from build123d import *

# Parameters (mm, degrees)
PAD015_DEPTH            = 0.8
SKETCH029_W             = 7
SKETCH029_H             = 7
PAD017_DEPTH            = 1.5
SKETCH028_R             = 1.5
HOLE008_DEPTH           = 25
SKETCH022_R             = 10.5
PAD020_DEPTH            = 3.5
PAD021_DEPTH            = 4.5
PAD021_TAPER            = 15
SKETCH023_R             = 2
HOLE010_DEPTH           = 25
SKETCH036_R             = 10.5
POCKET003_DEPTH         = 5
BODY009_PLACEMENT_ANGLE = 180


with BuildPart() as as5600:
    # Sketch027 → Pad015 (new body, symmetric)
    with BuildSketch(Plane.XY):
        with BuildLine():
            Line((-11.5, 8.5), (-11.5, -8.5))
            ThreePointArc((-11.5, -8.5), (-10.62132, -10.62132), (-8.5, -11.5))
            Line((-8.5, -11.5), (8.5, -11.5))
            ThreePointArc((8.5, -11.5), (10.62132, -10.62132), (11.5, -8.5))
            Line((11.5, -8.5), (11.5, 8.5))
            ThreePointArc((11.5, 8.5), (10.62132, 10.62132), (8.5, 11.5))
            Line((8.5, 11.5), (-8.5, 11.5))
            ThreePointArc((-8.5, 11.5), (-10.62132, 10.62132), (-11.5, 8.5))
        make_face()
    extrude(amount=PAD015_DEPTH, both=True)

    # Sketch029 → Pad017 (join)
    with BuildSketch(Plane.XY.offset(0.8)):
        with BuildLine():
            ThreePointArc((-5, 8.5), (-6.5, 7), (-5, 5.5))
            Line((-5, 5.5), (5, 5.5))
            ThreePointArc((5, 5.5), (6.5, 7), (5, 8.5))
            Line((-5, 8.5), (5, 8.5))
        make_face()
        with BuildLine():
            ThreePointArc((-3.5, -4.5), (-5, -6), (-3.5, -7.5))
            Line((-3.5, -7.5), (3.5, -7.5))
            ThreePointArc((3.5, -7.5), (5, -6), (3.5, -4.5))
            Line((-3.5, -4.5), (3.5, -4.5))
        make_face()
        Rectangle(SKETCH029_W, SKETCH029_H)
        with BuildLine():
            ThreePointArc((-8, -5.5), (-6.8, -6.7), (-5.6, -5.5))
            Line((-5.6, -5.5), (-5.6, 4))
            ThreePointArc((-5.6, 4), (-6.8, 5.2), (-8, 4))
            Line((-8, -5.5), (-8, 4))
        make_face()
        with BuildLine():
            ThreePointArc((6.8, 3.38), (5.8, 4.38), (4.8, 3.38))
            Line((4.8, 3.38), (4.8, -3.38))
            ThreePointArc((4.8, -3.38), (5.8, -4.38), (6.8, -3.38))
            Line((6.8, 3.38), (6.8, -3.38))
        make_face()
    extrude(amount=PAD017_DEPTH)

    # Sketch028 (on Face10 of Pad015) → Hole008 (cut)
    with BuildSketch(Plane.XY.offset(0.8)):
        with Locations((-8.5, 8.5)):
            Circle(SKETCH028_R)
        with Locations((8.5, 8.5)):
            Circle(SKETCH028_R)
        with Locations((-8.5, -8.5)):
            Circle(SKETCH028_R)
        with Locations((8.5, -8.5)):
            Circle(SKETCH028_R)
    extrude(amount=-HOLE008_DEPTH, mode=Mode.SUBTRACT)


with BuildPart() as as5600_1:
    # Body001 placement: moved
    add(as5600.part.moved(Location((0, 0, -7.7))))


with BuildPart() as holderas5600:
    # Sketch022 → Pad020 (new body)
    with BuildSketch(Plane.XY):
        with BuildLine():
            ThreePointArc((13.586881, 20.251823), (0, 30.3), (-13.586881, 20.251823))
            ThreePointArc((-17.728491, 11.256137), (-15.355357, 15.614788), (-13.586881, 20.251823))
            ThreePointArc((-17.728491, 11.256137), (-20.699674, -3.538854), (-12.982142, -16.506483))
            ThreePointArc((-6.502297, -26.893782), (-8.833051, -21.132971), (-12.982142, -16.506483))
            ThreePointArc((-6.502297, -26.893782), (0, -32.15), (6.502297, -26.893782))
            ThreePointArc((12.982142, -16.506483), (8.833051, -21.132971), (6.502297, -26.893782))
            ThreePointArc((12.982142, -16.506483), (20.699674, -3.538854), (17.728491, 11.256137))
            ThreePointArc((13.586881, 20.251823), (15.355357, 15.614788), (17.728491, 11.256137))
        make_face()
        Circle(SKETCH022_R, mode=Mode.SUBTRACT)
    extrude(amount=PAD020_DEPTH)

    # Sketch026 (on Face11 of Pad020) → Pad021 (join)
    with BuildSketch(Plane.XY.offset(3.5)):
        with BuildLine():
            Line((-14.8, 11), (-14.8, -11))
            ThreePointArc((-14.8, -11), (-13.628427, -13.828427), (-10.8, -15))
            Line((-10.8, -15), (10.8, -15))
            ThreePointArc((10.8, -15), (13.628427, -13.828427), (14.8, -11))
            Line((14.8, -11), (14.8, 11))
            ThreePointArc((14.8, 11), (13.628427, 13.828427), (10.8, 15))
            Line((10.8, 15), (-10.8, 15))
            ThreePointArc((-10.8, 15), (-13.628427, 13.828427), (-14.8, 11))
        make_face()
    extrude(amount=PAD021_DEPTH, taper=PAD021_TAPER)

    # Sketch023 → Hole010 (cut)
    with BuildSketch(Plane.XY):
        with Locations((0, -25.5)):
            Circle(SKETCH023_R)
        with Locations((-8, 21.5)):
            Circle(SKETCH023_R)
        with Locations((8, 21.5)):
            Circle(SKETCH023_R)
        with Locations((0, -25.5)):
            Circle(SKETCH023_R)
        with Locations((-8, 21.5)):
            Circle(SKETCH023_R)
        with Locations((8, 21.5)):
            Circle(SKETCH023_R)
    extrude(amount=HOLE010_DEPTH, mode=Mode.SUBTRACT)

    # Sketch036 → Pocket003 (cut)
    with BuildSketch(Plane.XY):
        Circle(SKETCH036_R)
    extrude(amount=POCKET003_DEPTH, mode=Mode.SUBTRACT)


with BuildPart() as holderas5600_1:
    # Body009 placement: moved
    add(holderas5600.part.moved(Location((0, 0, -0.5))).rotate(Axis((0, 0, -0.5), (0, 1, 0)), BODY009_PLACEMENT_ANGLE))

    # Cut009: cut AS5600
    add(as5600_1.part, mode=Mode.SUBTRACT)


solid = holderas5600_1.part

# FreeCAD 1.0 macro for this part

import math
import FreeCAD as App
import Part
import Sketcher
from FreeCAD import Vector

doc = App.newDocument("Part")
body = doc.addObject("PartDesign::Body", "Body")

sketch1 = doc.addObject("Sketcher::SketchObject", "Sketch")
body.addObject(sketch1)
sketch1.AttachmentSupport = (doc.XY_Plane, [""])
sketch1.MapMode = "FlatFace"
sketch1.addGeometry([
    Part.LineSegment(Vector(-11.5, 8.5, 0), Vector(-11.5, -8.5, 0)),
    Part.ArcOfCircle(Part.Circle(Vector(-8.5, -8.5, 0), Vector(0, 0, 1), 3), math.radians(-180), math.radians(-90)),
    Part.LineSegment(Vector(-8.5, -11.5, 0), Vector(8.5, -11.5, 0)),
    Part.ArcOfCircle(Part.Circle(Vector(8.5, -8.5, 0), Vector(0, 0, 1), 3), math.radians(-90), math.radians(0)),
    Part.LineSegment(Vector(11.5, -8.5, 0), Vector(11.5, 8.5, 0)),
    Part.ArcOfCircle(Part.Circle(Vector(8.5, 8.5, 0), Vector(0, 0, 1), 3), math.radians(0), math.radians(90)),
    Part.LineSegment(Vector(8.5, 11.5, 0), Vector(-8.5, 11.5, 0)),
    Part.ArcOfCircle(Part.Circle(Vector(-8.5, 8.5, 0), Vector(0, 0, 1), 3), math.radians(90), math.radians(180)),
], False)
sketch1.addConstraint([
    Sketcher.Constraint("Tangent", 0, 2, 1, 1),
    Sketcher.Constraint("Tangent", 1, 2, 2, 1),
    Sketcher.Constraint("Tangent", 2, 2, 3, 1),
    Sketcher.Constraint("Tangent", 3, 2, 4, 1),
    Sketcher.Constraint("Tangent", 4, 2, 5, 1),
    Sketcher.Constraint("Tangent", 5, 2, 6, 1),
    Sketcher.Constraint("Tangent", 6, 2, 7, 1),
    Sketcher.Constraint("Tangent", 7, 2, 0, 1),
    Sketcher.Constraint("Vertical", 0),
    Sketcher.Constraint("Horizontal", 2),
    Sketcher.Constraint("Vertical", 4),
    Sketcher.Constraint("Horizontal", 6),
    Sketcher.Constraint("Equal", 1, 3),
    Sketcher.Constraint("Equal", 3, 5),
    Sketcher.Constraint("Equal", 5, 7),
    Sketcher.Constraint("Symmetric", 1, 3, 5, 3, -1, 1),
    Sketcher.Constraint("Equal", 6, 0),
    Sketcher.Constraint("Radius", 1, 3.000001),
    Sketcher.Constraint("DistanceX", 2, 1, 2, 2, 17.0),
])
pad1 = doc.addObject("PartDesign::Pad", "Pad")
body.addObject(pad1)
pad1.Profile = sketch1
pad1.Length = 1.6
pad1.Midplane = True

sketch2 = doc.addObject("Sketcher::SketchObject", "Sketch001")
body.addObject(sketch2)
sketch2.AttachmentSupport = (doc.XY_Plane, [""])
sketch2.MapMode = "FlatFace"
sketch2.AttachmentOffset = App.Placement(Vector(0, 0, 0.8), App.Rotation())
sketch2.addGeometry([
    Part.ArcOfCircle(Part.Circle(Vector(-5, 7, 0), Vector(0, 0, 1), 1.5), math.radians(90), math.radians(270)),
    Part.LineSegment(Vector(-5, 5.5, 0), Vector(5, 5.5, 0)),
    Part.ArcOfCircle(Part.Circle(Vector(5, 7, 0), Vector(0, 0, 1), 1.5), math.radians(-90), math.radians(90)),
    Part.LineSegment(Vector(5, 8.5, 0), Vector(-5, 8.5, 0)),
    Part.ArcOfCircle(Part.Circle(Vector(-3.5, -6, 0), Vector(0, 0, 1), 1.5), math.radians(90), math.radians(270)),
    Part.LineSegment(Vector(-3.5, -7.5, 0), Vector(3.5, -7.5, 0)),
    Part.ArcOfCircle(Part.Circle(Vector(3.5, -6, 0), Vector(0, 0, 1), 1.5), math.radians(-90), math.radians(90)),
    Part.LineSegment(Vector(3.5, -4.5, 0), Vector(-3.5, -4.5, 0)),
    Part.LineSegment(Vector(-3.5, 3.5, 0), Vector(-3.5, -3.5, 0)),
    Part.LineSegment(Vector(-3.5, -3.5, 0), Vector(3.5, -3.5, 0)),
    Part.LineSegment(Vector(3.5, -3.5, 0), Vector(3.5, 3.5, 0)),
    Part.LineSegment(Vector(3.5, 3.5, 0), Vector(-3.5, 3.5, 0)),
    Part.ArcOfCircle(Part.Circle(Vector(-6.8, -5.5, 0), Vector(0, 0, 1), 1.2), math.radians(180), math.radians(360)),
    Part.LineSegment(Vector(-5.6, -5.5, 0), Vector(-5.6, 4, 0)),
    Part.ArcOfCircle(Part.Circle(Vector(-6.8, 4, 0), Vector(0, 0, 1), 1.2), math.radians(0), math.radians(180)),
    Part.LineSegment(Vector(-8, 4, 0), Vector(-8, -5.5, 0)),
    Part.ArcOfCircle(Part.Circle(Vector(5.8, 3.4, 0), Vector(0, 0, 1), 1), math.radians(0), math.radians(180)),
    Part.LineSegment(Vector(4.8, 3.4, 0), Vector(4.8, -3.4, 0)),
    Part.ArcOfCircle(Part.Circle(Vector(5.8, -3.4, 0), Vector(0, 0, 1), 1), math.radians(180), math.radians(360)),
    Part.LineSegment(Vector(6.8, -3.4, 0), Vector(6.8, 3.4, 0)),
], False)
sketch2.addConstraint([
    Sketcher.Constraint("Tangent", 0, 2, 1, 1),
    Sketcher.Constraint("Tangent", 1, 2, 2, 1),
    Sketcher.Constraint("Tangent", 2, 2, 3, 1),
    Sketcher.Constraint("Tangent", 3, 2, 0, 1),
    Sketcher.Constraint("Tangent", 4, 2, 5, 1),
    Sketcher.Constraint("Tangent", 5, 2, 6, 1),
    Sketcher.Constraint("Tangent", 6, 2, 7, 1),
    Sketcher.Constraint("Tangent", 7, 2, 4, 1),
    Sketcher.Constraint("Coincident", 8, 2, 9, 1),
    Sketcher.Constraint("Coincident", 9, 2, 10, 1),
    Sketcher.Constraint("Coincident", 10, 2, 11, 1),
    Sketcher.Constraint("Coincident", 11, 2, 8, 1),
    Sketcher.Constraint("Tangent", 12, 2, 13, 1),
    Sketcher.Constraint("Tangent", 13, 2, 14, 1),
    Sketcher.Constraint("Tangent", 14, 2, 15, 1),
    Sketcher.Constraint("Tangent", 15, 2, 12, 1),
    Sketcher.Constraint("Tangent", 16, 2, 17, 1),
    Sketcher.Constraint("Tangent", 17, 2, 18, 1),
    Sketcher.Constraint("Tangent", 18, 2, 19, 1),
    Sketcher.Constraint("Tangent", 19, 2, 16, 1),
    Sketcher.Constraint("Horizontal", 1),
    Sketcher.Constraint("Horizontal", 3),
    Sketcher.Constraint("Horizontal", 5),
    Sketcher.Constraint("Horizontal", 7),
    Sketcher.Constraint("Vertical", 8),
    Sketcher.Constraint("Horizontal", 9),
    Sketcher.Constraint("Vertical", 10),
    Sketcher.Constraint("Horizontal", 11),
    Sketcher.Constraint("Vertical", 13),
    Sketcher.Constraint("Vertical", 15),
    Sketcher.Constraint("Vertical", 17),
    Sketcher.Constraint("Vertical", 19),
    Sketcher.Constraint("Equal", 2, 4),
    Sketcher.Constraint("Symmetric", 8, 2, 10, 2, -1, 1),
    Sketcher.Constraint("Vertical", 7, 2, 8, 2),
    Sketcher.Constraint("Vertical", 6, 2, 9, 2),
    Sketcher.Constraint("Equal", 11, 8),
    Sketcher.Constraint("Radius", 16, 1.0),
    Sketcher.Constraint("Radius", 0, 1.5),
    Sketcher.Constraint("Radius", 12, 1.2),
    Sketcher.Constraint("DistanceX", 1, 1, 1, 2, 10.0),
    Sketcher.Constraint("DistanceX", 5, 1, 5, 2, 7.0),
    Sketcher.Constraint("DistanceY", 13, 1, 13, 2, 9.5),
    Sketcher.Constraint("DistanceX", 0, 3, -1, 1, 5.0),
    Sketcher.Constraint("DistanceY", -1, 1, 0, 3, 7.0),
    Sketcher.Constraint("DistanceY", 4, 3, -1, 1, 6.0),
    Sketcher.Constraint("DistanceY", -1, 1, 14, 3, 4.0),
    Sketcher.Constraint("DistanceX", 14, 2, -1, 1, 8.0),
    Sketcher.Constraint("DistanceY", 17, 2, 17, 1, 6.76),
    Sketcher.Constraint("DistanceX", -1, 1, 16, 3, 5.8),
    Sketcher.Constraint("DistanceY", -1, 1, 16, 3, 3.38),
])
pad2 = doc.addObject("PartDesign::Pad", "Pad001")
body.addObject(pad2)
pad2.Profile = sketch2
pad2.Length = 1.5

sketch3 = doc.addObject("Sketcher::SketchObject", "Sketch002")
body.addObject(sketch3)
sketch3.AttachmentSupport = (doc.XY_Plane, [""])
sketch3.MapMode = "FlatFace"
sketch3.AttachmentOffset = App.Placement(Vector(0, 0, 0.8), App.Rotation())
sketch3.addGeometry([
    Part.Circle(Vector(-8.5, 8.5, 0), Vector(0, 0, 1), 1.5),
    Part.Circle(Vector(8.5, 8.5, 0), Vector(0, 0, 1), 1.5),
    Part.Circle(Vector(-8.5, -8.5, 0), Vector(0, 0, 1), 1.5),
    Part.Circle(Vector(8.5, -8.5, 0), Vector(0, 0, 1), 1.5),
], False)
sketch3.addConstraint([
    Sketcher.Constraint("Equal", 0, 1),
    Sketcher.Constraint("Equal", 1, 2),
    Sketcher.Constraint("Equal", 2, 3),
    Sketcher.Constraint("Symmetric", 1, 3, 2, 3, -1, 1),
    Sketcher.Constraint("Symmetric", 0, 3, 3, 3, -1, 1),
    Sketcher.Constraint("Symmetric", 0, 3, 1, 3, -2),
    Sketcher.Constraint("Diameter", 0, 3.0),
    Sketcher.Constraint("DistanceX", 0, 3, 1, 3, 17.0),
    Sketcher.Constraint("DistanceY", 2, 3, 0, 3, 17.0),
])
pocket1 = doc.addObject("PartDesign::Pocket", "Pocket")
body.addObject(pocket1)
pocket1.Profile = sketch3
pocket1.Length = 25
body2 = doc.addObject("PartDesign::Body", "Body001")
doc.recompute()

body.Placement = App.Placement(Vector(0, 0, -7.7), App.Rotation(Vector(0, 0, 1), 0))
boolean = doc.addObject("PartDesign::Boolean", "Boolean")
body2.addObject(boolean)
boolean.Type = "Fuse"
boolean.addObjects([body])
body3 = doc.addObject("PartDesign::Body", "Body002")

sketch4 = doc.addObject("Sketcher::SketchObject", "Sketch003")
body3.addObject(sketch4)
sketch4.AttachmentSupport = (doc.getObject("XY_Plane002"), [""])
sketch4.MapMode = "FlatFace"
sketch4.addGeometry([
    Part.ArcOfCircle(Part.Circle(Vector(0, 16, 0), Vector(0, 0, 1), 14), math.radians(17), math.radians(163)),
    Part.ArcOfCircle(Part.Circle(Vector(-49, 31, 0), Vector(0, 0, 1), 37), math.radians(-32.41), math.radians(-17.03)),
    Part.ArcOfCircle(Part.Circle(Vector(0, 0, 0), Vector(0, 0, 1), 21), math.radians(148), math.radians(232)),
    Part.ArcOfCircle(Part.Circle(Vector(-24, -31, 0), Vector(0, 0, 1), 18), math.radians(12), math.radians(52)),
    Part.ArcOfCircle(Part.Circle(Vector(0, -26, 0), Vector(0, 0, 1), 7), math.radians(-168), math.radians(-12)),
    Part.ArcOfCircle(Part.Circle(Vector(24, -31, 0), Vector(0, 0, 1), 18), math.radians(128), math.radians(168)),
    Part.ArcOfCircle(Part.Circle(Vector(0, 0, 0), Vector(0, 0, 1), 21), math.radians(-52), math.radians(32)),
    Part.ArcOfCircle(Part.Circle(Vector(49, 31, 0), Vector(0, 0, 1), 37), math.radians(-162.97), math.radians(-147.59)),
    Part.Circle(Vector(0, 0, 0), Vector(0, 0, 1), 10),
], False)
sketch4.addConstraint([
    Sketcher.Constraint("Tangent", 0, 2, 1, 2),
    Sketcher.Constraint("Tangent", 1, 1, 2, 1),
    Sketcher.Constraint("Tangent", 2, 2, 3, 2),
    Sketcher.Constraint("Tangent", 3, 1, 4, 1),
    Sketcher.Constraint("Tangent", 4, 2, 5, 2),
    Sketcher.Constraint("Tangent", 5, 1, 6, 1),
    Sketcher.Constraint("Tangent", 6, 2, 7, 2),
    Sketcher.Constraint("Tangent", 7, 1, 0, 1),
    Sketcher.Constraint("Coincident", 2, 3, -1, 1),
    Sketcher.Constraint("Coincident", 6, 3, -1, 1),
    Sketcher.Constraint("Coincident", 8, 3, -1, 1),
    Sketcher.Constraint("Equal", 3, 5),
    Sketcher.Constraint("Equal", 2, 6),
    Sketcher.Constraint("Equal", 1, 7),
    Sketcher.Constraint("PointOnObject", 0, 3, -2),
    Sketcher.Constraint("PointOnObject", 4, 3, -2),
    Sketcher.Constraint("Diameter", 8, 21.0),
    Sketcher.Constraint("Radius", 2, 21.000001),
    Sketcher.Constraint("Radius", 0, 14.21),
    Sketcher.Constraint("Radius", 4, 6.649999),
    Sketcher.Constraint("DistanceY", 4, 3, -1, 1, 25.500001),
    Sketcher.Constraint("DistanceY", -1, 1, 0, 3, 16.09),
    Sketcher.Constraint("Radius", 1, 37.000035),
    Sketcher.Constraint("Radius", 3, 18.020007),
])
pad3 = doc.addObject("PartDesign::Pad", "Pad002")
body3.addObject(pad3)
pad3.Profile = sketch4
pad3.Length = 3.5

sketch5 = doc.addObject("Sketcher::SketchObject", "Sketch004")
body3.addObject(sketch5)
sketch5.AttachmentSupport = (doc.getObject("XY_Plane002"), [""])
sketch5.MapMode = "FlatFace"
sketch5.AttachmentOffset = App.Placement(Vector(0, 0, 3.5), App.Rotation())
sketch5.addGeometry([
    Part.LineSegment(Vector(-14.8, 11, 0), Vector(-14.8, -11, 0)),
    Part.ArcOfCircle(Part.Circle(Vector(-10.8, -11, 0), Vector(0, 0, 1), 4), math.radians(-180), math.radians(-90)),
    Part.LineSegment(Vector(-10.8, -15, 0), Vector(10.8, -15, 0)),
    Part.ArcOfCircle(Part.Circle(Vector(10.8, -11, 0), Vector(0, 0, 1), 4), math.radians(-90), math.radians(0)),
    Part.LineSegment(Vector(14.8, -11, 0), Vector(14.8, 11, 0)),
    Part.ArcOfCircle(Part.Circle(Vector(10.8, 11, 0), Vector(0, 0, 1), 4), math.radians(0), math.radians(90)),
    Part.LineSegment(Vector(10.8, 15, 0), Vector(-10.8, 15, 0)),
    Part.ArcOfCircle(Part.Circle(Vector(-10.8, 11, 0), Vector(0, 0, 1), 4), math.radians(90), math.radians(180)),
], False)
sketch5.addConstraint([
    Sketcher.Constraint("Tangent", 0, 2, 1, 1),
    Sketcher.Constraint("Tangent", 1, 2, 2, 1),
    Sketcher.Constraint("Tangent", 2, 2, 3, 1),
    Sketcher.Constraint("Tangent", 3, 2, 4, 1),
    Sketcher.Constraint("Tangent", 4, 2, 5, 1),
    Sketcher.Constraint("Tangent", 5, 2, 6, 1),
    Sketcher.Constraint("Tangent", 6, 2, 7, 1),
    Sketcher.Constraint("Tangent", 7, 2, 0, 1),
    Sketcher.Constraint("Vertical", 0),
    Sketcher.Constraint("Horizontal", 2),
    Sketcher.Constraint("Vertical", 4),
    Sketcher.Constraint("Horizontal", 6),
    Sketcher.Constraint("Equal", 1, 3),
    Sketcher.Constraint("Equal", 3, 5),
    Sketcher.Constraint("Equal", 5, 7),
    Sketcher.Constraint("Symmetric", 1, 3, 5, 3, -1, 1),
    Sketcher.Constraint("Radius", 1, 4.0),
    Sketcher.Constraint("DistanceY", 0, 2, 0, 1, 22.0),
    Sketcher.Constraint("DistanceX", 2, 1, 2, 2, 21.6),
])
pad4 = doc.addObject("PartDesign::Pad", "Pad003")
body3.addObject(pad4)
pad4.Profile = sketch5
pad4.Length = 4.5
pad4.TaperAngle = -15

sketch6 = doc.addObject("Sketcher::SketchObject", "Sketch005")
body3.addObject(sketch6)
sketch6.AttachmentSupport = (doc.getObject("XY_Plane002"), [""])
sketch6.MapMode = "FlatFace"
sketch6.addGeometry([
    Part.Circle(Vector(0, -25.5, 0), Vector(0, 0, 1), 2),
    Part.Circle(Vector(-8, 21.5, 0), Vector(0, 0, 1), 2),
    Part.Circle(Vector(8, 21.5, 0), Vector(0, 0, 1), 2),
], False)
sketch6.addConstraint([
    Sketcher.Constraint("Equal", 0, 1),
    Sketcher.Constraint("Equal", 1, 2),
    Sketcher.Constraint("Symmetric", 1, 3, 2, 3, -2),
    Sketcher.Constraint("PointOnObject", 0, 3, -2),
    Sketcher.Constraint("Diameter", 0, 4.0),
    Sketcher.Constraint("DistanceX", 1, 3, -1, 1, 8.0),
    Sketcher.Constraint("DistanceY", 0, 3, 1, 3, 47.0),
    Sketcher.Constraint("DistanceY", 0, 3, -1, 1, 25.5),
])
pocket2 = doc.addObject("PartDesign::Pocket", "Pocket001")
body3.addObject(pocket2)
pocket2.Profile = sketch6
pocket2.Length = 25
pocket2.Reversed = True

sketch7 = doc.addObject("Sketcher::SketchObject", "Sketch006")
body3.addObject(sketch7)
sketch7.AttachmentSupport = (doc.getObject("XY_Plane002"), [""])
sketch7.MapMode = "FlatFace"
sketch7.addGeometry(Part.Circle(Vector(0, 0, 0), Vector(0, 0, 1), 10), False)
sketch7.addConstraint([
    Sketcher.Constraint("Coincident", 0, 3, -1, 1),
    Sketcher.Constraint("Diameter", 0, 21.0),
])
pocket3 = doc.addObject("PartDesign::Pocket", "Pocket002")
body3.addObject(pocket3)
pocket3.Profile = sketch7
pocket3.Length = 5
pocket3.Reversed = True
body4 = doc.addObject("PartDesign::Body", "Body003")
doc.recompute()

body3.Placement = App.Placement(Vector(0, 0, -0.5), App.Rotation(Vector(0, 1, 0), 180))
boolean2 = doc.addObject("PartDesign::Boolean", "Boolean001")
body4.addObject(boolean2)
boolean2.Type = "Fuse"
boolean2.addObjects([body3])
doc.recompute()

boolean3 = doc.addObject("PartDesign::Boolean", "Boolean002")
body4.addObject(boolean3)
boolean3.Type = "Cut"
boolean3.addObjects([body2])

doc.recompute()
